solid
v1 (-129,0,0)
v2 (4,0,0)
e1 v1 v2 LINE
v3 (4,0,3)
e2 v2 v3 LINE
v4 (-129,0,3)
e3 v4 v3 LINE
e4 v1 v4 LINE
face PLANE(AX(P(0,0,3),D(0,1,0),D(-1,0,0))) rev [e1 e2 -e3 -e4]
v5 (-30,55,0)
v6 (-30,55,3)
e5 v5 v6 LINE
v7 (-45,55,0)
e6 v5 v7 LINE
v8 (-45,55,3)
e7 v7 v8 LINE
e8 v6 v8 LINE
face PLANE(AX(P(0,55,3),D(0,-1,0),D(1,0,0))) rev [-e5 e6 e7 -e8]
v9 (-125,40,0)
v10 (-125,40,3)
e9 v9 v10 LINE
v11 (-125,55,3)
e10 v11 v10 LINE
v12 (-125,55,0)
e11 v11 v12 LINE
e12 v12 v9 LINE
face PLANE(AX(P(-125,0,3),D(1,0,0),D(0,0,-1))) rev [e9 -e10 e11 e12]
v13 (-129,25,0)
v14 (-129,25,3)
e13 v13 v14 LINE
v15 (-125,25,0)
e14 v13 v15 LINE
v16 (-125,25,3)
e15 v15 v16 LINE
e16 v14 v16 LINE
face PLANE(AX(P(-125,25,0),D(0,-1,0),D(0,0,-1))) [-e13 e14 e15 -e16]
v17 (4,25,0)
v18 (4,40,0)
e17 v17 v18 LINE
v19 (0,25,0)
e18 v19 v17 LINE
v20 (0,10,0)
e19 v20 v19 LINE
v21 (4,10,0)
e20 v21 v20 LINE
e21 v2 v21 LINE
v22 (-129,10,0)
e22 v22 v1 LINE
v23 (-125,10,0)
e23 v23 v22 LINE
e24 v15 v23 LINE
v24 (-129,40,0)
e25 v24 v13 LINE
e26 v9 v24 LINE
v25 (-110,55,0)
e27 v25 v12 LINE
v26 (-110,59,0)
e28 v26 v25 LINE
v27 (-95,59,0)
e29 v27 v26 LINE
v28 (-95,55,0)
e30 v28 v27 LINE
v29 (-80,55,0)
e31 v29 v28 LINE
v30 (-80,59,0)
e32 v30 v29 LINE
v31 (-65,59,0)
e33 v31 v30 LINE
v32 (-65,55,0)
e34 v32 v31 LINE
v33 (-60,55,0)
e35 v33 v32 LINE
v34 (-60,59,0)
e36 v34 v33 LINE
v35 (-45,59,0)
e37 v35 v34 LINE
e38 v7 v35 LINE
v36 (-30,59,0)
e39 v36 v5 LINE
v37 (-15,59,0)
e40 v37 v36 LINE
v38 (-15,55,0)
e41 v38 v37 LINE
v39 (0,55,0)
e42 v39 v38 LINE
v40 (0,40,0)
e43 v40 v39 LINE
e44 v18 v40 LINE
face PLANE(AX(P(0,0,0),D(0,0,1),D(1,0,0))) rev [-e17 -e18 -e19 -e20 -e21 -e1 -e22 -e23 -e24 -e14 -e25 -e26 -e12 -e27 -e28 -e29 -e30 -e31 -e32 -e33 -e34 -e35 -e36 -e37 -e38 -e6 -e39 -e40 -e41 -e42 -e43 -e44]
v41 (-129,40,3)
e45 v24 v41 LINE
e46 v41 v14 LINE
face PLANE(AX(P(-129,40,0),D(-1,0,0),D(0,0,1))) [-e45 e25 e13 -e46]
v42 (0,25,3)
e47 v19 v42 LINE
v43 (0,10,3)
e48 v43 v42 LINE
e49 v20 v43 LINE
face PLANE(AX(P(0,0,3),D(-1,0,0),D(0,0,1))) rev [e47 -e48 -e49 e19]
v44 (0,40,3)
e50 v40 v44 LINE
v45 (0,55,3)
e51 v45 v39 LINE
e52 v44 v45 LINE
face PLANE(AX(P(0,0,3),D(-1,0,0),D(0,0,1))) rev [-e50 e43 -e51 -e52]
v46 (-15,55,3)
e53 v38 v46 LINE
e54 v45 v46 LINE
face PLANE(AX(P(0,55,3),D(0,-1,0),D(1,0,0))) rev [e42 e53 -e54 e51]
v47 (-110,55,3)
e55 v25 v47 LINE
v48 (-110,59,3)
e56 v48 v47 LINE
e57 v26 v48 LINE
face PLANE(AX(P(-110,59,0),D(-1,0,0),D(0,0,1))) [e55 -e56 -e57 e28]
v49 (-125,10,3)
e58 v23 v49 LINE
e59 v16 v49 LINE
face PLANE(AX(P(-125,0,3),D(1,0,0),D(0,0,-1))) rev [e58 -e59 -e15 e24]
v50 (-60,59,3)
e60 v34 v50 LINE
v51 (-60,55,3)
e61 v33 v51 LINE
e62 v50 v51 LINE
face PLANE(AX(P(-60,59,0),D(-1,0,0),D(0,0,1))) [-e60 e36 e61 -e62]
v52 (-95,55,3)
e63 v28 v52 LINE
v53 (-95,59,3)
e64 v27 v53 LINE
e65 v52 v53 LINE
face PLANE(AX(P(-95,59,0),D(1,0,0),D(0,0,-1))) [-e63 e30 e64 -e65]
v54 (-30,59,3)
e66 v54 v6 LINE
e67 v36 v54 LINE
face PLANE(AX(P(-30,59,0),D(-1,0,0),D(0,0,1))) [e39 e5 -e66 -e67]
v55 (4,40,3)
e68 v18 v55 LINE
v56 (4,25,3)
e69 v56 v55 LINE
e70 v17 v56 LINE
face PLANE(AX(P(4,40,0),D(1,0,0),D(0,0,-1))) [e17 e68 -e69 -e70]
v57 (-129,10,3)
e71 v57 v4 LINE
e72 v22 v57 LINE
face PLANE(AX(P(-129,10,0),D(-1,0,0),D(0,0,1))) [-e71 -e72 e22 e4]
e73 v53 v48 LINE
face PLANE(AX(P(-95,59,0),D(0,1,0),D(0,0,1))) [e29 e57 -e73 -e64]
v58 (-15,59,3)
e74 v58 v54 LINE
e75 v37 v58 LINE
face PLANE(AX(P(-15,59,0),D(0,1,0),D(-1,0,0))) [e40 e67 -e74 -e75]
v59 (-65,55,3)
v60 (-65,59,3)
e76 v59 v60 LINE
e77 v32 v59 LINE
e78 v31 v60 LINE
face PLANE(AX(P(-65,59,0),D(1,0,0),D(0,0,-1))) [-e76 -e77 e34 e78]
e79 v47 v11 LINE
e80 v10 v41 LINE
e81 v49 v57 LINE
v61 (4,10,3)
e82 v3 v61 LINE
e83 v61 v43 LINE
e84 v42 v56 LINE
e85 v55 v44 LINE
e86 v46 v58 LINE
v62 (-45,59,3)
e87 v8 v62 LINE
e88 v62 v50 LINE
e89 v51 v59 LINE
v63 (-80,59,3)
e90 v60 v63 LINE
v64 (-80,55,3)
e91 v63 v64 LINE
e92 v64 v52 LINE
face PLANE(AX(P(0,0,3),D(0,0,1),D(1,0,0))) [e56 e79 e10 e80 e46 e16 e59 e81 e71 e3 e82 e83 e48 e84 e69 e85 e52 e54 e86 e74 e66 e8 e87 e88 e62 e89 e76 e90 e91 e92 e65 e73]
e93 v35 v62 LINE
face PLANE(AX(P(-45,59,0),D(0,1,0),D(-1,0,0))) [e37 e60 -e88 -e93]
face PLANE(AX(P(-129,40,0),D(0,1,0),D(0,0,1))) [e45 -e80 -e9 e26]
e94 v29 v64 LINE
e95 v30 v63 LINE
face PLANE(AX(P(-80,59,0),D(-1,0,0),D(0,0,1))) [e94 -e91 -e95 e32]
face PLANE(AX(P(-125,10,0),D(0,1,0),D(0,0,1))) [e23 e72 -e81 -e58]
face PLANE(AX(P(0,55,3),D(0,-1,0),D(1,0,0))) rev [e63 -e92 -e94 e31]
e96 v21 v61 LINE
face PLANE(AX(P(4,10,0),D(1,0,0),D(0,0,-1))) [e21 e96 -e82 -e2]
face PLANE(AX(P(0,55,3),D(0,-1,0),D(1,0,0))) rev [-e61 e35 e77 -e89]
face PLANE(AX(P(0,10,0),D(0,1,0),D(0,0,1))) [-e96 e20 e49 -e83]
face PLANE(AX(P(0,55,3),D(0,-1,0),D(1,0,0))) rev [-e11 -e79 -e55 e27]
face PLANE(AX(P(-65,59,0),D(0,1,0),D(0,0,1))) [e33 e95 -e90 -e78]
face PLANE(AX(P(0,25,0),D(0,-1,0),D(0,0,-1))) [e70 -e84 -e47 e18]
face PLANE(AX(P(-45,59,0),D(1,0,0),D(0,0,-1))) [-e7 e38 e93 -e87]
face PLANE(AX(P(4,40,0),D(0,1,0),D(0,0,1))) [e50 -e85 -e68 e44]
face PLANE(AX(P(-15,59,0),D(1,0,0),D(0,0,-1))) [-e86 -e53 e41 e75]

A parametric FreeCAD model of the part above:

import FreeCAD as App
import Part
import Sketcher
from FreeCAD import Vector

doc = App.newDocument("Part")
body = doc.addObject("PartDesign::Body", "Body")

# Sketch on XY plane
sketch1 = body.newObject("Sketcher::SketchObject", "Sketch")
sketch1.AttachmentSupport = (doc.getObject("XY_Plane"), [""])
sketch1.MapMode = "FlatFace"
sketch1.addGeometry([
    Part.LineSegment(Vector(-125, 55, 0), Vector(-125, 0, 0)),
    Part.LineSegment(Vector(-125, 0, 0), Vector(0, 0, 0)),
    Part.LineSegment(Vector(0, 0, 0), Vector(0, 55, 0)),
    Part.LineSegment(Vector(0, 55, 0), Vector(-125, 55, 0)),
], False)
sketch1.addConstraint([
    Sketcher.Constraint("Coincident", 0, 2, 1, 1),
    Sketcher.Constraint("Coincident", 1, 2, 2, 1),
    Sketcher.Constraint("Coincident", 2, 2, 3, 1),
    Sketcher.Constraint("Coincident", 3, 2, 0, 1),
    Sketcher.Constraint("Vertical", 0),
    Sketcher.Constraint("Horizontal", 1),
    Sketcher.Constraint("Vertical", 2),
    Sketcher.Constraint("Horizontal", 3),
    Sketcher.Constraint("Coincident", 1, 2, -1, 1),
    Sketcher.Constraint("DistanceX", 1, 1, 1, 2, 125.0),
    Sketcher.Constraint("DistanceY", 0, 2, 0, 1, 55.0),
])
pad1 = body.newObject("PartDesign::Pad", "Pad")
pad1.Profile = sketch1
pad1.Length = 3

# Sketch on XY plane
sketch2 = body.newObject("Sketcher::SketchObject", "Sketch001")
sketch2.AttachmentSupport = (doc.getObject("XY_Plane"), [""])
sketch2.MapMode = "FlatFace"
sketch2.AttachmentOffset = App.Placement(Vector(0, 0, 3), App.Rotation())
sketch2.addGeometry([
    Part.LineSegment(Vector(-129, 10, 0), Vector(-129, 0, 0)),  # 0
    Part.LineSegment(Vector(-129, 0, 0), Vector(-125, 0, 0)),  # 1
    Part.LineSegment(Vector(-125, 0, 0), Vector(-125, 10, 0)),  # 2
    Part.LineSegment(Vector(-125, 10, 0), Vector(-129, 10, 0)),  # 3
    Part.LineSegment(Vector(0, 10, 0), Vector(0, 0, 0)),  # 4
    Part.LineSegment(Vector(0, 0, 0), Vector(4, 0, 0)),  # 5
    Part.LineSegment(Vector(4, 0, 0), Vector(4, 10, 0)),  # 6
    Part.LineSegment(Vector(4, 10, 0), Vector(0, 10, 0)),  # 7
    Part.LineSegment(Vector(0, 40, 0), Vector(0, 25, 0)),  # 8
    Part.LineSegment(Vector(0, 25, 0), Vector(4, 25, 0)),  # 9
    Part.LineSegment(Vector(4, 25, 0), Vector(4, 40, 0)),  # 10
    Part.LineSegment(Vector(4, 40, 0), Vector(0, 40, 0)),  # 11
    Part.LineSegment(Vector(-129, 40, 0), Vector(-129, 25, 0)),  # 12
    Part.LineSegment(Vector(-129, 25, 0), Vector(-125, 25, 0)),  # 13
    Part.LineSegment(Vector(-125, 25, 0), Vector(-125, 40, 0)),  # 14
    Part.LineSegment(Vector(-125, 40, 0), Vector(-129, 40, 0)),  # 15
    Part.LineSegment(Vector(-80, 59, 0), Vector(-80, 55, 0)),  # 16
    Part.LineSegment(Vector(-80, 55, 0), Vector(-65, 55, 0)),  # 17
    Part.LineSegment(Vector(-65, 55, 0), Vector(-65, 59, 0)),  # 18
    Part.LineSegment(Vector(-65, 59, 0), Vector(-80, 59, 0)),  # 19
    Part.LineSegment(Vector(-30, 59, 0), Vector(-30, 55, 0)),  # 20
    Part.LineSegment(Vector(-30, 55, 0), Vector(-15, 55, 0)),  # 21
    Part.LineSegment(Vector(-15, 55, 0), Vector(-15, 59, 0)),  # 22
    Part.LineSegment(Vector(-15, 59, 0), Vector(-30, 59, 0)),  # 23
    Part.LineSegment(Vector(-110, 59, 0), Vector(-110, 55, 0)),  # 24
    Part.LineSegment(Vector(-110, 55, 0), Vector(-95, 55, 0)),  # 25
    Part.LineSegment(Vector(-95, 55, 0), Vector(-95, 59, 0)),  # 26
    Part.LineSegment(Vector(-95, 59, 0), Vector(-110, 59, 0)),  # 27
    Part.LineSegment(Vector(-60, 59, 0), Vector(-60, 55, 0)),  # 28
    Part.LineSegment(Vector(-60, 55, 0), Vector(-45, 55, 0)),  # 29
    Part.LineSegment(Vector(-45, 55, 0), Vector(-45, 59, 0)),  # 30
    Part.LineSegment(Vector(-45, 59, 0), Vector(-60, 59, 0)),  # 31
], False)
sketch2.addConstraint([
    Sketcher.Constraint("Coincident", 0, 2, 1, 1),
    Sketcher.Constraint("Coincident", 1, 2, 2, 1),
    Sketcher.Constraint("Coincident", 2, 2, 3, 1),
    Sketcher.Constraint("Coincident", 3, 2, 0, 1),
    Sketcher.Constraint("Coincident", 4, 2, 5, 1),
    Sketcher.Constraint("Coincident", 5, 2, 6, 1),
    Sketcher.Constraint("Coincident", 6, 2, 7, 1),
    Sketcher.Constraint("Coincident", 7, 2, 4, 1),
    Sketcher.Constraint("Coincident", 8, 2, 9, 1),
    Sketcher.Constraint("Coincident", 9, 2, 10, 1),
    Sketcher.Constraint("Coincident", 10, 2, 11, 1),
    Sketcher.Constraint("Coincident", 11, 2, 8, 1),
    Sketcher.Constraint("Coincident", 12, 2, 13, 1),
    Sketcher.Constraint("Coincident", 13, 2, 14, 1),
    Sketcher.Constraint("Coincident", 14, 2, 15, 1),
    Sketcher.Constraint("Coincident", 15, 2, 12, 1),
    Sketcher.Constraint("Coincident", 16, 2, 17, 1),
    Sketcher.Constraint("Coincident", 17, 2, 18, 1),
    Sketcher.Constraint("Coincident", 18, 2, 19, 1),
    Sketcher.Constraint("Coincident", 19, 2, 16, 1),
    Sketcher.Constraint("Coincident", 20, 2, 21, 1),
    Sketcher.Constraint("Coincident", 21, 2, 22, 1),
    Sketcher.Constraint("Coincident", 22, 2, 23, 1),
    Sketcher.Constraint("Coincident", 23, 2, 20, 1),
    Sketcher.Constraint("Coincident", 24, 2, 25, 1),
    Sketcher.Constraint("Coincident", 25, 2, 26, 1),
    Sketcher.Constraint("Coincident", 26, 2, 27, 1),
    Sketcher.Constraint("Coincident", 27, 2, 24, 1),
    Sketcher.Constraint("Coincident", 28, 2, 29, 1),
    Sketcher.Constraint("Coincident", 29, 2, 30, 1),
    Sketcher.Constraint("Coincident", 30, 2, 31, 1),
    Sketcher.Constraint("Coincident", 31, 2, 28, 1),
    Sketcher.Constraint("Vertical", 0),
    Sketcher.Constraint("Horizontal", 1),
    Sketcher.Constraint("Vertical", 2),
    Sketcher.Constraint("Horizontal", 3),
    Sketcher.Constraint("Vertical", 4),
    Sketcher.Constraint("Horizontal", 5),
    Sketcher.Constraint("Vertical", 6),
    Sketcher.Constraint("Horizontal", 7),
    Sketcher.Constraint("Vertical", 8),
    Sketcher.Constraint("Horizontal", 9),
    Sketcher.Constraint("Vertical", 10),
    Sketcher.Constraint("Horizontal", 11),
    Sketcher.Constraint("Vertical", 12),
    Sketcher.Constraint("Horizontal", 13),
    Sketcher.Constraint("Vertical", 14),
    Sketcher.Constraint("Horizontal", 15),
    Sketcher.Constraint("Vertical", 16),
    Sketcher.Constraint("Horizontal", 17),
    Sketcher.Constraint("Vertical", 18),
    Sketcher.Constraint("Horizontal", 19),
    Sketcher.Constraint("Vertical", 20),
    Sketcher.Constraint("Horizontal", 21),
    Sketcher.Constraint("Vertical", 22),
    Sketcher.Constraint("Horizontal", 23),
    Sketcher.Constraint("Vertical", 24),
    Sketcher.Constraint("Horizontal", 25),
    Sketcher.Constraint("Vertical", 26),
    Sketcher.Constraint("Horizontal", 27),
    Sketcher.Constraint("Vertical", 28),
    Sketcher.Constraint("Horizontal", 29),
    Sketcher.Constraint("Vertical", 30),
    Sketcher.Constraint("Horizontal", 31),
    Sketcher.Constraint("Coincident", 4, 2, -1, 1),
    Sketcher.Constraint("PointOnObject", 0, 2, -1),
    Sketcher.Constraint("PointOnObject", 8, 2, -2),
    Sketcher.Constraint("Horizontal", 3, 2, 6, 2),
    Sketcher.Constraint("Horizontal", 9, 2, 12, 2),
    Sketcher.Constraint("Horizontal", 11, 2, 14, 2),
    Sketcher.Constraint("Horizontal", 17, 2, 20, 2),
    Sketcher.Constraint("Horizontal", 19, 2, 22, 2),
    Sketcher.Constraint("Horizontal", 21, 2, 24, 2),
    Sketcher.Constraint("Horizontal", 23, 2, 26, 2),
    Sketcher.Constraint("Horizontal", 25, 2, 28, 2),
    Sketcher.Constraint("Horizontal", 27, 2, 30, 2),
    Sketcher.Constraint("Vertical", 6, 2, 9, 2),
    Sketcher.Constraint("Vertical", 3, 2, 12, 2),
    Sketcher.Constraint("Vertical", 2, 2, 13, 2),
    Sketcher.Constraint("Equal", 3, 5),
    Sketcher.Constraint("Equal", 19, 21),
    Sketcher.Constraint("Equal", 23, 25),
    Sketcher.Constraint("Equal", 27, 29),
    Sketcher.Constraint("Equal", 31, 8),
    Sketcher.Constraint("Equal", 15, 16),
    Sketcher.Constraint("DistanceX", 1, 1, 1, 2, 4.0),
    Sketcher.Constraint("DistanceX", 17, 1, 17, 2, 15.0),
    Sketcher.Constraint("DistanceY", 0, 2, 0, 1, 10.0),
    Sketcher.Constraint("DistanceX", 0, 2, -1, 1, 129.0),
    Sketcher.Constraint("DistanceY", -1, 1, 8, 2, 25.0),
    Sketcher.Constraint("DistanceX", 16, 2, -1, 1, 80.0),
    Sketcher.Constraint("DistanceY", -1, 1, 16, 2, 55.0),
    Sketcher.Constraint("DistanceX", 20, 2, -1, 1, 30.0),
    Sketcher.Constraint("DistanceX", 24, 2, -1, 1, 110.0),
    Sketcher.Constraint("DistanceX", 28, 2, -1, 1, 60.0),
])
pad2 = body.newObject("PartDesign::Pad", "Pad001")
pad2.Profile = sketch2
pad2.Length = 3
pad2.Reversed = True

doc.recompute()
